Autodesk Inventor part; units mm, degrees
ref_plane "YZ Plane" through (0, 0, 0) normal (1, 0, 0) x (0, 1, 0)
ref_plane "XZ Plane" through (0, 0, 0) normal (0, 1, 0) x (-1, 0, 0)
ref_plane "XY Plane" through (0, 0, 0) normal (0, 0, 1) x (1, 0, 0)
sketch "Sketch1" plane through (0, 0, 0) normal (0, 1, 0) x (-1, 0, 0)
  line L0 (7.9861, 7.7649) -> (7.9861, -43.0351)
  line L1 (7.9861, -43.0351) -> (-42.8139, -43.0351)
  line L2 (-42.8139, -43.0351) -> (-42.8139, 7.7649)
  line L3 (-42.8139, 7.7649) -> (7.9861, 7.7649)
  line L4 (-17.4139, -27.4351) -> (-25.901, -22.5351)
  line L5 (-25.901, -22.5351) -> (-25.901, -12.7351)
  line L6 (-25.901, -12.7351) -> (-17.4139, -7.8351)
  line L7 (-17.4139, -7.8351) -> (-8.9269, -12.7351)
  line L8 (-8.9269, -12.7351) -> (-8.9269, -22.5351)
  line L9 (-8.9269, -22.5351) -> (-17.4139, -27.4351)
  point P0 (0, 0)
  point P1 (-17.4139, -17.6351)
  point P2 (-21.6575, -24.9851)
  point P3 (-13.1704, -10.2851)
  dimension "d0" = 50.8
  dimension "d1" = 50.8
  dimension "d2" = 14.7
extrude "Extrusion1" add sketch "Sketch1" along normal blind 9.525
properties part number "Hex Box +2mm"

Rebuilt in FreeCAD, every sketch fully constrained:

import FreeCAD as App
import Part
import Sketcher

V = App.Vector
Q = App.Units.Quantity


def add_polygon(sketch, points):
    """Adds a closed chain of lines whose ends are joined by coincident constraints."""
    first, n = sketch.GeometryCount, len(points)
    for a, b in zip(points, points[1:] + points[:1]):
        sketch.addGeometry(Part.LineSegment(App.Vector(*a, 0), App.Vector(*b, 0)), False)
    for i in range(n):
        sketch.addConstraint(Sketcher.Constraint("Coincident", first + i, 2, first + (i + 1) % n, 1))

doc = App.newDocument("Part")
body = doc.addObject("PartDesign::Body", "Body")

# Sketch on XZ plane
sketch1 = doc.addObject("Sketcher::SketchObject", "Sketch")
body.addObject(sketch1)
sketch1.AttachmentSupport = (doc.XZ_Plane, [""])
sketch1.MapMode = "FlatFace"
add_polygon(sketch1, [(-8, -43), (-8, 8), (43, 8), (43, -43)])  # lines 0-3
add_polygon(sketch1, [(9, -23), (17, -27), (26, -23), (26, -13), (17, -8), (9, -13)])  # lines 4-9
sketch1.addConstraint([
    Sketcher.Constraint("Vertical", 0),
    Sketcher.Constraint("Horizontal", 1),
    Sketcher.Constraint("Vertical", 2),
    Sketcher.Constraint("Horizontal", 3),
    Sketcher.Constraint("Vertical", 6),
    Sketcher.Constraint("Vertical", 9),
    Sketcher.Constraint("Parallel", 4, 7),
    Sketcher.Constraint("Parallel", 5, 8),
    Sketcher.Constraint("Horizontal", 6, 2, 8, 2),
    Sketcher.Constraint("Horizontal", 5, 2, 9, 2),
    Sketcher.Constraint("Vertical", 4, 2, 7, 2),
    Sketcher.Constraint("Equal", 3, 0),
    Sketcher.Constraint("DistanceX", 1, 1, 1, 2, Q("50.8 mm")),
    Sketcher.Constraint("DistanceY", 4, 2, 6, 2, Q("14.7 mm")),
    Sketcher.Constraint("Angle", 4, Q("-30.0001 deg")),
    Sketcher.Constraint("DistanceY", 6, 1, 6, 2, Q("9.8 mm")),
    Sketcher.Constraint("DistanceX", 4, 2, 2, 2, Q("25.4 mm")),
    Sketcher.Constraint("DistanceY", 2, 2, 4, 2, Q("15.6 mm")),
    Sketcher.Constraint("DistanceX", 0, 2, -1, 1, Q("7.986 mm")),
    Sketcher.Constraint("DistanceY", -1, 1, 0, 2, Q("7.765 mm")),
])
pad1 = doc.addObject("PartDesign::Pad", "Pad")
body.addObject(pad1)
pad1.Profile = sketch1
pad1.Length = 9.525
pad1.Reversed = True

doc.recompute()
